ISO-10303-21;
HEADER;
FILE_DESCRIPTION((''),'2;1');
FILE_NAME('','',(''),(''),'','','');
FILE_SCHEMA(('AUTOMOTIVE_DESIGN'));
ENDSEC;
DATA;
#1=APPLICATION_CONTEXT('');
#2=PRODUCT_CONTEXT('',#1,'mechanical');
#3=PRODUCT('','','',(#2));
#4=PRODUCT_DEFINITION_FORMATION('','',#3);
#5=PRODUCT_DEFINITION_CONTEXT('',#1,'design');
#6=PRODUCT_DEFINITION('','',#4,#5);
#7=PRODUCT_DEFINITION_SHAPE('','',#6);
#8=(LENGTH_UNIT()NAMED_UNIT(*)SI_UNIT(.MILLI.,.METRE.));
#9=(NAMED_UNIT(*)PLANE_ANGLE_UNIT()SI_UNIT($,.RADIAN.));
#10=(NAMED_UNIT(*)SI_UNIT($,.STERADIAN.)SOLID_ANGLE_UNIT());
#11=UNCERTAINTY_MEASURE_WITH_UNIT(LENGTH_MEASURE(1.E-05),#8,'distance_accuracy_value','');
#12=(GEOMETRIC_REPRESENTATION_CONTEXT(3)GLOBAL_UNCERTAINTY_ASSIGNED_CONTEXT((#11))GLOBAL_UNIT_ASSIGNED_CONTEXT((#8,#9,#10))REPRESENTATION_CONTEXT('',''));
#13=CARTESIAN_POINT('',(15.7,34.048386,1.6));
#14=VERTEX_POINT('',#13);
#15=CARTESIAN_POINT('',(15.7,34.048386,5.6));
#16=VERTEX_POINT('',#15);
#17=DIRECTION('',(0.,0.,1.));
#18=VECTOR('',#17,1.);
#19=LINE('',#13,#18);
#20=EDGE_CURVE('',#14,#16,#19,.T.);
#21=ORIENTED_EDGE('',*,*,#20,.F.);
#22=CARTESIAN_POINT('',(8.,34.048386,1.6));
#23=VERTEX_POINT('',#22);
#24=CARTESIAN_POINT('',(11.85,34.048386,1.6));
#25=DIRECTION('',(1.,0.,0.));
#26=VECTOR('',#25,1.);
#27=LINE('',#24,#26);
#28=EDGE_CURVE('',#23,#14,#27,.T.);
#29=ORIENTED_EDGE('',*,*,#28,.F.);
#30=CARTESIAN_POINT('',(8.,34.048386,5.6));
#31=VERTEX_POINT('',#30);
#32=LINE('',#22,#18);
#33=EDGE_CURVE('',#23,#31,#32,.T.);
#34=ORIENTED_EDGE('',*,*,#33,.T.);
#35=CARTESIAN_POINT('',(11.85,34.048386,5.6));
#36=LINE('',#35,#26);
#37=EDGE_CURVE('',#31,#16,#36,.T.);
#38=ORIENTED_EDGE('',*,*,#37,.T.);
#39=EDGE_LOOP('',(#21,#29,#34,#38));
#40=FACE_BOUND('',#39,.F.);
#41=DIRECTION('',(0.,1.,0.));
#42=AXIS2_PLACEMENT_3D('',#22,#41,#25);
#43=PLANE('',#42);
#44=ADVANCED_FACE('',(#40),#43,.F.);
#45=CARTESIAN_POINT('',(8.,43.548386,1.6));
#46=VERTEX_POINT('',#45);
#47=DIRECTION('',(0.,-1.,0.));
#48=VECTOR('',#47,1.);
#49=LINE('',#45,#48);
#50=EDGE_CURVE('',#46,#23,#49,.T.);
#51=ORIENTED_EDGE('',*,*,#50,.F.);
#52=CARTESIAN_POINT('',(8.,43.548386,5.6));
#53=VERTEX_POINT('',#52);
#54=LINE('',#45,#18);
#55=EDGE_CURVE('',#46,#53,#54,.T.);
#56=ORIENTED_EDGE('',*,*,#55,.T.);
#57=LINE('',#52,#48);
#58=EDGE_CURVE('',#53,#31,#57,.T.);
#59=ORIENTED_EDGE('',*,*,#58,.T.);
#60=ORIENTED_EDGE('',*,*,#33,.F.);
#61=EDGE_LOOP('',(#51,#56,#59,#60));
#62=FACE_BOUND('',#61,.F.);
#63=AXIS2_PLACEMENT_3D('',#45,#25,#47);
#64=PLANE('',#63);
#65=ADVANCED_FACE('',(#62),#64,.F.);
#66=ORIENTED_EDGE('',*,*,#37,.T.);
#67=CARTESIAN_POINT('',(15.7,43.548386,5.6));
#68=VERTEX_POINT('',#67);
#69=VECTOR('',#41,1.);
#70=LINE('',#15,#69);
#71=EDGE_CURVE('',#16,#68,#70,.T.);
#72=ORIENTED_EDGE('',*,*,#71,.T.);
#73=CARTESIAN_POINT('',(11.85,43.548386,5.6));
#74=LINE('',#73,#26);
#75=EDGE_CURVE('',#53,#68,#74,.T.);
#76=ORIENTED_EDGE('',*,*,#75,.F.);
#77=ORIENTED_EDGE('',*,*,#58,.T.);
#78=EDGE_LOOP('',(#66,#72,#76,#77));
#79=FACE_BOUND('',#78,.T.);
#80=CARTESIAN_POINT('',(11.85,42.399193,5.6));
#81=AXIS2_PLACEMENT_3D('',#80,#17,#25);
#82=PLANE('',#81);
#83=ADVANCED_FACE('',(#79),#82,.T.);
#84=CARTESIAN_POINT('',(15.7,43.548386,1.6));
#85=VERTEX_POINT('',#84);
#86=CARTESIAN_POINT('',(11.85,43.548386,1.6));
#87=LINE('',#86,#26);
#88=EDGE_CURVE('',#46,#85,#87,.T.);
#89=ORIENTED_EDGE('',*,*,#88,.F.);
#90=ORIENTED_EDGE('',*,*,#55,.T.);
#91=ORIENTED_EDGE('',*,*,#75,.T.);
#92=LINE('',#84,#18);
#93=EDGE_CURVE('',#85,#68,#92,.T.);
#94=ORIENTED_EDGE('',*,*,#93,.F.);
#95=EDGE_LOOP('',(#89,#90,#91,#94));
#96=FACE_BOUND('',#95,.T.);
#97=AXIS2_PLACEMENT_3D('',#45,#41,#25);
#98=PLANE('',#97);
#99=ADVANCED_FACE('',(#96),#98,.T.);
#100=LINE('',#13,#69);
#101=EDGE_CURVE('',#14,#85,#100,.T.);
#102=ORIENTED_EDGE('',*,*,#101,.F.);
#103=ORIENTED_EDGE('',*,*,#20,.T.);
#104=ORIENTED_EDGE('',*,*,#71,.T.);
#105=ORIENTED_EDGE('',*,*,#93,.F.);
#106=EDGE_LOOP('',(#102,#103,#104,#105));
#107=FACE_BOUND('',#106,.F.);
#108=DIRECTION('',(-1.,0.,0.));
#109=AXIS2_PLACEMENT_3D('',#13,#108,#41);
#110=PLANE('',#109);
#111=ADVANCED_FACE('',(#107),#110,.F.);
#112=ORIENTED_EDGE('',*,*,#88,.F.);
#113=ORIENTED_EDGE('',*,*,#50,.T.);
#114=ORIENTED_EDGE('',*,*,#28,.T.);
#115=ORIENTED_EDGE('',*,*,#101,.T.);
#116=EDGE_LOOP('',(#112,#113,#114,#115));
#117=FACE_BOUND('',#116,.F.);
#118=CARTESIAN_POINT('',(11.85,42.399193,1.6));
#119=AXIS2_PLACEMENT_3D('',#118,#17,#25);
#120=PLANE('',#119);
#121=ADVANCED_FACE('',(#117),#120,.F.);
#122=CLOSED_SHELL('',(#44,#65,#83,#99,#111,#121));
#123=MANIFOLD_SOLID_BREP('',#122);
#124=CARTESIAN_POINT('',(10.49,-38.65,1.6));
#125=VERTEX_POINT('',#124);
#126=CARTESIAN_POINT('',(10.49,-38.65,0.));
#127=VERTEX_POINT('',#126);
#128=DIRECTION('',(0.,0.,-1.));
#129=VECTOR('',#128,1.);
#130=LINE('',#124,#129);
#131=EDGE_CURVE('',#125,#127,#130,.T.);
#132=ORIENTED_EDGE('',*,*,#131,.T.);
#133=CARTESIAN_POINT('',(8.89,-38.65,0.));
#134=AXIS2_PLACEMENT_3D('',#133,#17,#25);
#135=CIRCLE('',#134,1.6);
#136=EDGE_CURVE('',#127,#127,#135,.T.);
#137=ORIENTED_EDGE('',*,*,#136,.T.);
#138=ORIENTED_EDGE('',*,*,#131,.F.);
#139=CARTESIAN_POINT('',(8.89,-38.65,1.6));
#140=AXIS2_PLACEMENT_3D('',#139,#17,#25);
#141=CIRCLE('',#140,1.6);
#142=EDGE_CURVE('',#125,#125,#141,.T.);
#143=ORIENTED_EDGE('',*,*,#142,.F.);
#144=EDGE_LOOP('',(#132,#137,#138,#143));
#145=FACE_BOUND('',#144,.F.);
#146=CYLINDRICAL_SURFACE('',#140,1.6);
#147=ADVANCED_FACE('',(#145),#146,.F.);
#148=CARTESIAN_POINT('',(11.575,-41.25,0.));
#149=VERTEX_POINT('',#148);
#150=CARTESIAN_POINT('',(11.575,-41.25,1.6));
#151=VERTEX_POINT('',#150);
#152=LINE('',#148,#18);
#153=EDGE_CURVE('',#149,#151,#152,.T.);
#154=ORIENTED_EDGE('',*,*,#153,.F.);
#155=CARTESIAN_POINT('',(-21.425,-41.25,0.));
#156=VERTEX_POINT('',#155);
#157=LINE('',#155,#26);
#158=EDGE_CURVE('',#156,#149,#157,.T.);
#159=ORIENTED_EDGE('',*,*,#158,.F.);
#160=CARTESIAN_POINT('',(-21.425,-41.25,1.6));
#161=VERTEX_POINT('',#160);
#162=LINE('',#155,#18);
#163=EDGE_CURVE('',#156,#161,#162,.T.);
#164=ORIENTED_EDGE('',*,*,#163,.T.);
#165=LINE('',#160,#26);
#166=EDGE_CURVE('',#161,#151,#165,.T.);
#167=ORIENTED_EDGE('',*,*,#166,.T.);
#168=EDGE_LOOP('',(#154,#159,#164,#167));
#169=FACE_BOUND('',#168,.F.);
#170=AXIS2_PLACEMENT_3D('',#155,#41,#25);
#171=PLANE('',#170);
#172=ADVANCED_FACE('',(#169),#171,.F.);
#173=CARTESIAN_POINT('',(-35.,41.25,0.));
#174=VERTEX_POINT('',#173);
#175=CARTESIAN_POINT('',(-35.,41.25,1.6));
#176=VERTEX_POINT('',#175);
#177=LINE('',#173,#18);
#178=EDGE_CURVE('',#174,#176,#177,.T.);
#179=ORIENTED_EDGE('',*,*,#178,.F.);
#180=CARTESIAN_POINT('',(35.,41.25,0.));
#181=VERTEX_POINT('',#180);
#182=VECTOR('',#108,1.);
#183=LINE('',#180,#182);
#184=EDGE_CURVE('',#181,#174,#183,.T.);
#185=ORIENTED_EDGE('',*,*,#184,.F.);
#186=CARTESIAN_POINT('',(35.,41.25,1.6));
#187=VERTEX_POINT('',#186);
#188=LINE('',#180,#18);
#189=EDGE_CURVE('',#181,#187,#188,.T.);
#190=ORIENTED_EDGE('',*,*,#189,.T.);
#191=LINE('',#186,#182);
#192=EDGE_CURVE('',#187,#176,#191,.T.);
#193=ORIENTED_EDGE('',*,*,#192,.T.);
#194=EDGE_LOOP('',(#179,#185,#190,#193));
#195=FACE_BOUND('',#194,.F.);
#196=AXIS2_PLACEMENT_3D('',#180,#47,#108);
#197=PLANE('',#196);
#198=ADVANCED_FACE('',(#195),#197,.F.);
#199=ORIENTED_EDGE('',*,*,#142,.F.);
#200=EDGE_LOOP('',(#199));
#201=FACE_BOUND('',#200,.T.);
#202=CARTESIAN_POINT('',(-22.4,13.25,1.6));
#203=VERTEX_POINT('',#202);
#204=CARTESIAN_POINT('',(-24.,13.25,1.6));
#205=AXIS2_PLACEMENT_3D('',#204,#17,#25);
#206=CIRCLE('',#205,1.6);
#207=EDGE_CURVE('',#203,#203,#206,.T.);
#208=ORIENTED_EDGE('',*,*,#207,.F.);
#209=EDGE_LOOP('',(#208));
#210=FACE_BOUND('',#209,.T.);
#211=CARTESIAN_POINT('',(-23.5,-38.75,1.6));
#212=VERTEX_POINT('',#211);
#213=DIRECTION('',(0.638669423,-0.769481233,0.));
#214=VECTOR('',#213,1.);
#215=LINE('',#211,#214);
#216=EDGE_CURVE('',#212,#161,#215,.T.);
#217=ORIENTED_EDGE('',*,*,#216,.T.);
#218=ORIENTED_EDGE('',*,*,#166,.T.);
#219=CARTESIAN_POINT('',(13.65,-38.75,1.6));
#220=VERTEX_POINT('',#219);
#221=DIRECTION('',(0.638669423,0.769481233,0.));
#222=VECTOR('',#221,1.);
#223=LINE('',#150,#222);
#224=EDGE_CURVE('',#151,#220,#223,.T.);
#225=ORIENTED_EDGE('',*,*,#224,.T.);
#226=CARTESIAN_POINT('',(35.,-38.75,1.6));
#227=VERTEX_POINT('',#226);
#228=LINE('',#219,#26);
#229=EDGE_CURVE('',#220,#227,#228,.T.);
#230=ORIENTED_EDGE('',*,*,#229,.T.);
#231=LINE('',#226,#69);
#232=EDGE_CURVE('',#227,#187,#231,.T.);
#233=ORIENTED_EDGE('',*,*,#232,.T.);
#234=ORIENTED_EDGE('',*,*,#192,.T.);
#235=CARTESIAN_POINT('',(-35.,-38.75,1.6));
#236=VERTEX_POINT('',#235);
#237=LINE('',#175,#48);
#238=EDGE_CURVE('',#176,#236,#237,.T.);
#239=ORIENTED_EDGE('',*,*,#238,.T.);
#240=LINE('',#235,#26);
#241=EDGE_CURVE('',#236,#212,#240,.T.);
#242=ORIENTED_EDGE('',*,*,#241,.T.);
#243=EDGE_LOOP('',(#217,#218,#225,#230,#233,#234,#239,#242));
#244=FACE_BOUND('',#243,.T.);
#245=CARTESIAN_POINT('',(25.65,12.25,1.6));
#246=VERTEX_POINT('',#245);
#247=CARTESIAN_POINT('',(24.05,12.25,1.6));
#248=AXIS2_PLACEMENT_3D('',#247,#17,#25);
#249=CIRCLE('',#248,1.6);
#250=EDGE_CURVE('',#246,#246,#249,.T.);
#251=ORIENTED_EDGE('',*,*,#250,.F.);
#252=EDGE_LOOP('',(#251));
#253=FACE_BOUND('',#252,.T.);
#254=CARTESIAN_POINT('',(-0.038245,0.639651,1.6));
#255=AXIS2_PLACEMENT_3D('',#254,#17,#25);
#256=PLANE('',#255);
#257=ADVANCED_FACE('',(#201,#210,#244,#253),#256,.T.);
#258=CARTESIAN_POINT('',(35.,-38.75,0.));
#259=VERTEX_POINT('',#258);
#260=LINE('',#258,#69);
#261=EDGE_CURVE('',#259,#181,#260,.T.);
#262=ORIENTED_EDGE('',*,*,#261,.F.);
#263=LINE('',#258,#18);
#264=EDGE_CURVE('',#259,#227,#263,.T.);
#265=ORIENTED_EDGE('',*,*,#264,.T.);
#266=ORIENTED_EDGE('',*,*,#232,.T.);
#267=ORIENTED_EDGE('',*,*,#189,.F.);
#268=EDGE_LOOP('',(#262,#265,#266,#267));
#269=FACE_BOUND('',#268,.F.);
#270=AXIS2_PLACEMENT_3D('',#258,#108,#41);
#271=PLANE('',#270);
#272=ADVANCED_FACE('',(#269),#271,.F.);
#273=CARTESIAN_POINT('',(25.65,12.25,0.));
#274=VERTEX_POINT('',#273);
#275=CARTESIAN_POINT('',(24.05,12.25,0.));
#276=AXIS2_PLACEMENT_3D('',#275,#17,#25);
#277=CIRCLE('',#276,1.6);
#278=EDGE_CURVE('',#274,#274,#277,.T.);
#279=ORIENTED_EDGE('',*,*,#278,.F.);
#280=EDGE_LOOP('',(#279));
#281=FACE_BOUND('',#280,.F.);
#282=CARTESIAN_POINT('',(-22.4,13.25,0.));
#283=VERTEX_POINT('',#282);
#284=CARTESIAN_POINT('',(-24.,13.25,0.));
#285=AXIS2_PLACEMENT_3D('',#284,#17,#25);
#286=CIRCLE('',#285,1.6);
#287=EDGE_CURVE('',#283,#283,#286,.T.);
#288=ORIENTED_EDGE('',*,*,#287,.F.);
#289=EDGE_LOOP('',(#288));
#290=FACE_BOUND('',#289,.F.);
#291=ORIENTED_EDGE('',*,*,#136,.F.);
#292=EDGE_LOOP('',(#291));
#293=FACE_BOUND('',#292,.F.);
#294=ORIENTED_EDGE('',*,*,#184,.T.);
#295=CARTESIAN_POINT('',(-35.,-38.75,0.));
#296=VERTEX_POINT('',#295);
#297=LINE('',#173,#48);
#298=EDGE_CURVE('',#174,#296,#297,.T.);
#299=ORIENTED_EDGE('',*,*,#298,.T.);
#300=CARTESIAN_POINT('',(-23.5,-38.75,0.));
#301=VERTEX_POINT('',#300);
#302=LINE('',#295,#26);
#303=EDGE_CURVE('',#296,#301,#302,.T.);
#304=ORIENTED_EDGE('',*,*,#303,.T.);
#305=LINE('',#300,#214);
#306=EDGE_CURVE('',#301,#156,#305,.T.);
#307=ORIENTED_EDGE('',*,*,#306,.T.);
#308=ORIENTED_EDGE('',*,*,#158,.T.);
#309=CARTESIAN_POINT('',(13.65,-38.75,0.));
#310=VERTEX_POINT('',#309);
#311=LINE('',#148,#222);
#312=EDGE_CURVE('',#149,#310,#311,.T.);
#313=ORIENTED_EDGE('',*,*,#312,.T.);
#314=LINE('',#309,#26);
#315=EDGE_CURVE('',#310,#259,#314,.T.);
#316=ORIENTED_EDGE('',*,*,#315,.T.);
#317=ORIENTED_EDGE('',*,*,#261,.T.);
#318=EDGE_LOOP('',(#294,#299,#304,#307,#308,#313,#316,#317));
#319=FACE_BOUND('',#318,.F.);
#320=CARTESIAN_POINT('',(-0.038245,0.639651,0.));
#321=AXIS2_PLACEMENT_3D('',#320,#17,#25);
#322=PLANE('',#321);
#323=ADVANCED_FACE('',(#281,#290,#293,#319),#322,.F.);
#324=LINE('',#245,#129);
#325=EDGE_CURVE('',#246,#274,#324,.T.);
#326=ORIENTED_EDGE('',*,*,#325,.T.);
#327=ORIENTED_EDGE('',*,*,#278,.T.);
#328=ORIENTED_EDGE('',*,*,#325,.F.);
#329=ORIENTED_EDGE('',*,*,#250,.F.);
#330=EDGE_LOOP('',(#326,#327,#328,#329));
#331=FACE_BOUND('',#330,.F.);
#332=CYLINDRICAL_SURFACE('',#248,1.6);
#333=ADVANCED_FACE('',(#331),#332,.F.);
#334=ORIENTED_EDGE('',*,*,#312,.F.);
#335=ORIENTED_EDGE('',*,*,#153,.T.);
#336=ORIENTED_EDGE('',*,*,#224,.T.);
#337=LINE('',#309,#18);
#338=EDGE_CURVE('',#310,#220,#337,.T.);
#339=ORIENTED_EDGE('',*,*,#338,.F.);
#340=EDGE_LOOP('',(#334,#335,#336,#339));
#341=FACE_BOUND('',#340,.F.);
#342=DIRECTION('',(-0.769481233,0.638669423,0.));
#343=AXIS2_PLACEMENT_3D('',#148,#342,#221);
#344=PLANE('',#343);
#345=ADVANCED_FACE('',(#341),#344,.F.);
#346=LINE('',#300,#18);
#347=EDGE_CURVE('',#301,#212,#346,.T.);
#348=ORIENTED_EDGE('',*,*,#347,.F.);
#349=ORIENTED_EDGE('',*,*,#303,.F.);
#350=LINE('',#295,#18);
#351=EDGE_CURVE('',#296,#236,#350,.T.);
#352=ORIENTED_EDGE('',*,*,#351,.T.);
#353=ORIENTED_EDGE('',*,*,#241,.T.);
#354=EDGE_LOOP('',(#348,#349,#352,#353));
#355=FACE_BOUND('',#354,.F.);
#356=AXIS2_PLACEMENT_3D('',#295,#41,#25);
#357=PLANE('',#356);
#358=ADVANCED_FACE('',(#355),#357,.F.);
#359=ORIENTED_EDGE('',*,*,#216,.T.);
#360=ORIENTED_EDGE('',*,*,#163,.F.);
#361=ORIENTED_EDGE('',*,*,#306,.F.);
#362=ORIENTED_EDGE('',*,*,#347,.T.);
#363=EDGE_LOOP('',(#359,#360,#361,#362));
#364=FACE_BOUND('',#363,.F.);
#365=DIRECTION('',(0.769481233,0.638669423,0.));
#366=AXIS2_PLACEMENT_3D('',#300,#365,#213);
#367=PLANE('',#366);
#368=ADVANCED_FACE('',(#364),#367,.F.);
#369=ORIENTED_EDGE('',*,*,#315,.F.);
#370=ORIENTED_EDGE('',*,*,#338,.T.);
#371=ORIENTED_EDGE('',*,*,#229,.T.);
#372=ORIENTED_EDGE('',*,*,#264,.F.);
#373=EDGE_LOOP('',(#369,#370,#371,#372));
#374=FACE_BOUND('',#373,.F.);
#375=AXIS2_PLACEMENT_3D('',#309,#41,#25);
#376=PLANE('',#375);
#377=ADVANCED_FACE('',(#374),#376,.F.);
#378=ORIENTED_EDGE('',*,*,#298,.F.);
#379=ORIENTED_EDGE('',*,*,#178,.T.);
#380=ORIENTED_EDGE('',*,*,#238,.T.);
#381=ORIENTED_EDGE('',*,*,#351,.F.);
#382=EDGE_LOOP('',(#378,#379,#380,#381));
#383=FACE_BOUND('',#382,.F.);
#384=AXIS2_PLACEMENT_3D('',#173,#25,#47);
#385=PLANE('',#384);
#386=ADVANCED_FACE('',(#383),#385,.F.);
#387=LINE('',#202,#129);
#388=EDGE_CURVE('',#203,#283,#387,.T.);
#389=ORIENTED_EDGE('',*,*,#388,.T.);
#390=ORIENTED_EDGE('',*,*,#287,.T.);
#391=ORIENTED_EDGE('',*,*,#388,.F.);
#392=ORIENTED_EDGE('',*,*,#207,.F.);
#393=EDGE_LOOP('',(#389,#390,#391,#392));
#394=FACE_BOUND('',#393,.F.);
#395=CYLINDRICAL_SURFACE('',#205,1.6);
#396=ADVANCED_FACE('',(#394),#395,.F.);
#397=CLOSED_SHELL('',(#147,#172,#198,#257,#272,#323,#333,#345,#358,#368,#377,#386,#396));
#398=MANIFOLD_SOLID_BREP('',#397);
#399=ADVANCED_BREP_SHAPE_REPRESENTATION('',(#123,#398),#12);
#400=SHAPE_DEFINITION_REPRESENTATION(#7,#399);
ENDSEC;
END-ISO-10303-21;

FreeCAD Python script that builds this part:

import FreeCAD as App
import Part
import Sketcher

V = App.Vector


def add_polygon(sketch, points):
    """Adds a closed chain of lines whose ends are joined by coincident constraints."""
    first, n = sketch.GeometryCount, len(points)
    for a, b in zip(points, points[1:] + points[:1]):
        sketch.addGeometry(Part.LineSegment(App.Vector(*a, 0), App.Vector(*b, 0)), False)
    for i in range(n):
        sketch.addConstraint(Sketcher.Constraint("Coincident", first + i, 2, first + (i + 1) % n, 1))

doc = App.newDocument("Part")
body = doc.addObject("PartDesign::Body", "Body")

# Sketch on XY plane
sketch1 = body.newObject("Sketcher::SketchObject", "Sketch")
sketch1.AttachmentSupport = (doc.getObject("XY_Plane"), [""])
sketch1.MapMode = "FlatFace"
add_polygon(sketch1, [(35, 41.2), (-35, 41.2), (-35, -38.8), (-23.5, -38.8), (-21.4, -41.2), (11.6, -41.2), (13.7, -38.8), (35, -38.8)])  # lines 0-7
sketch1.addConstraint([
    Sketcher.Constraint("Horizontal", 0),
    Sketcher.Constraint("Vertical", 1),
    Sketcher.Constraint("Horizontal", 2),
    Sketcher.Constraint("Horizontal", 4),
    Sketcher.Constraint("Horizontal", 6),
    Sketcher.Constraint("Vertical", 7),
    Sketcher.Constraint("Symmetric", 1, 2, 6, 2, -2),
    Sketcher.Constraint("Equal", 3, 5),
    Sketcher.Constraint("DistanceX", 0, 2, 0, 1, 70.0),
    Sketcher.Constraint("DistanceX", 4, 1, 4, 2, 33.0),
    Sketcher.Constraint("DistanceY", 1, 2, 1, 1, 80.0),
    Sketcher.Constraint("DistanceX", 2, 1, 2, 2, 11.5),
    Sketcher.Constraint("DistanceX", 6, 1, 6, 2, 21.35),
    Sketcher.Constraint("DistanceY", 3, 2, 2, 2, 2.5),
    Sketcher.Constraint("DistanceY", -1, 1, 0, 2, 41.25),
])
pad1 = body.newObject("PartDesign::Pad", "Pad")
pad1.Profile = sketch1
pad1.Length = 1.6

# Sketch on XY plane
sketch2 = body.newObject("Sketcher::SketchObject", "Sketch001")
sketch2.AttachmentSupport = (doc.getObject("XY_Plane"), [""])
sketch2.MapMode = "FlatFace"
sketch2.AttachmentOffset = App.Placement(V(0, 0, 1.6), App.Rotation())
sketch2.addGeometry([
    Part.Circle(V(-24, 13.2, 0), V(0, 0, 1), 1.6),
    Part.Circle(V(24.1, 12.2, 0), V(0, 0, 1), 1.6),
    Part.Circle(V(8.9, -38.6, 0), V(0, 0, 1), 1.6),
], False)
sketch2.addConstraint([
    Sketcher.Constraint("Equal", 0, 1),
    Sketcher.Constraint("Equal", 1, 2),
    Sketcher.Constraint("Diameter", 0, 3.2),
    Sketcher.Constraint("DistanceX", 0, 3, -1, 1, 24.0),
    Sketcher.Constraint("DistanceY", 1, 3, 0, 3, 1.0),
    Sketcher.Constraint("DistanceY", 2, 3, 1, 3, 50.9),
    Sketcher.Constraint("DistanceY", -1, 1, 0, 3, 13.25),
    Sketcher.Constraint("DistanceX", -1, 1, 1, 3, 24.05),
    Sketcher.Constraint("DistanceX", -1, 1, 2, 3, 8.89),
])
pocket1 = body.newObject("PartDesign::Pocket", "Pocket")
pocket1.Profile = sketch2
pocket1.Type = "ThroughAll"
body2 = doc.addObject("PartDesign::Body", "Body001")

# Sketch on XY plane
sketch3 = body2.newObject("Sketcher::SketchObject", "Sketch002")
sketch3.AttachmentSupport = (doc.getObject("XY_Plane001"), [""])
sketch3.MapMode = "FlatFace"
sketch3.AttachmentOffset = App.Placement(V(0, 0, 1.6), App.Rotation())
add_polygon(sketch3, [(8, 44), (8, 34), (16, 34), (16, 44)])  # lines 0-3
sketch3.addConstraint([
    Sketcher.Constraint("Vertical", 0),
    Sketcher.Constraint("Horizontal", 1),
    Sketcher.Constraint("Vertical", 2),
    Sketcher.Constraint("Horizontal", 3),
    Sketcher.Constraint("DistanceX", 1, 1, 1, 2, 7.7),
    Sketcher.Constraint("DistanceY", 0, 2, 0, 1, 9.5),
    Sketcher.Constraint("DistanceX", -1, 1, 0, 2, 8.0),
    Sketcher.Constraint("DistanceY", -1, 1, 0, 2, 34.048386),
])
pad2 = body2.newObject("PartDesign::Pad", "Pad001")
pad2.Profile = sketch3
pad2.Length = 4

doc.recompute()
